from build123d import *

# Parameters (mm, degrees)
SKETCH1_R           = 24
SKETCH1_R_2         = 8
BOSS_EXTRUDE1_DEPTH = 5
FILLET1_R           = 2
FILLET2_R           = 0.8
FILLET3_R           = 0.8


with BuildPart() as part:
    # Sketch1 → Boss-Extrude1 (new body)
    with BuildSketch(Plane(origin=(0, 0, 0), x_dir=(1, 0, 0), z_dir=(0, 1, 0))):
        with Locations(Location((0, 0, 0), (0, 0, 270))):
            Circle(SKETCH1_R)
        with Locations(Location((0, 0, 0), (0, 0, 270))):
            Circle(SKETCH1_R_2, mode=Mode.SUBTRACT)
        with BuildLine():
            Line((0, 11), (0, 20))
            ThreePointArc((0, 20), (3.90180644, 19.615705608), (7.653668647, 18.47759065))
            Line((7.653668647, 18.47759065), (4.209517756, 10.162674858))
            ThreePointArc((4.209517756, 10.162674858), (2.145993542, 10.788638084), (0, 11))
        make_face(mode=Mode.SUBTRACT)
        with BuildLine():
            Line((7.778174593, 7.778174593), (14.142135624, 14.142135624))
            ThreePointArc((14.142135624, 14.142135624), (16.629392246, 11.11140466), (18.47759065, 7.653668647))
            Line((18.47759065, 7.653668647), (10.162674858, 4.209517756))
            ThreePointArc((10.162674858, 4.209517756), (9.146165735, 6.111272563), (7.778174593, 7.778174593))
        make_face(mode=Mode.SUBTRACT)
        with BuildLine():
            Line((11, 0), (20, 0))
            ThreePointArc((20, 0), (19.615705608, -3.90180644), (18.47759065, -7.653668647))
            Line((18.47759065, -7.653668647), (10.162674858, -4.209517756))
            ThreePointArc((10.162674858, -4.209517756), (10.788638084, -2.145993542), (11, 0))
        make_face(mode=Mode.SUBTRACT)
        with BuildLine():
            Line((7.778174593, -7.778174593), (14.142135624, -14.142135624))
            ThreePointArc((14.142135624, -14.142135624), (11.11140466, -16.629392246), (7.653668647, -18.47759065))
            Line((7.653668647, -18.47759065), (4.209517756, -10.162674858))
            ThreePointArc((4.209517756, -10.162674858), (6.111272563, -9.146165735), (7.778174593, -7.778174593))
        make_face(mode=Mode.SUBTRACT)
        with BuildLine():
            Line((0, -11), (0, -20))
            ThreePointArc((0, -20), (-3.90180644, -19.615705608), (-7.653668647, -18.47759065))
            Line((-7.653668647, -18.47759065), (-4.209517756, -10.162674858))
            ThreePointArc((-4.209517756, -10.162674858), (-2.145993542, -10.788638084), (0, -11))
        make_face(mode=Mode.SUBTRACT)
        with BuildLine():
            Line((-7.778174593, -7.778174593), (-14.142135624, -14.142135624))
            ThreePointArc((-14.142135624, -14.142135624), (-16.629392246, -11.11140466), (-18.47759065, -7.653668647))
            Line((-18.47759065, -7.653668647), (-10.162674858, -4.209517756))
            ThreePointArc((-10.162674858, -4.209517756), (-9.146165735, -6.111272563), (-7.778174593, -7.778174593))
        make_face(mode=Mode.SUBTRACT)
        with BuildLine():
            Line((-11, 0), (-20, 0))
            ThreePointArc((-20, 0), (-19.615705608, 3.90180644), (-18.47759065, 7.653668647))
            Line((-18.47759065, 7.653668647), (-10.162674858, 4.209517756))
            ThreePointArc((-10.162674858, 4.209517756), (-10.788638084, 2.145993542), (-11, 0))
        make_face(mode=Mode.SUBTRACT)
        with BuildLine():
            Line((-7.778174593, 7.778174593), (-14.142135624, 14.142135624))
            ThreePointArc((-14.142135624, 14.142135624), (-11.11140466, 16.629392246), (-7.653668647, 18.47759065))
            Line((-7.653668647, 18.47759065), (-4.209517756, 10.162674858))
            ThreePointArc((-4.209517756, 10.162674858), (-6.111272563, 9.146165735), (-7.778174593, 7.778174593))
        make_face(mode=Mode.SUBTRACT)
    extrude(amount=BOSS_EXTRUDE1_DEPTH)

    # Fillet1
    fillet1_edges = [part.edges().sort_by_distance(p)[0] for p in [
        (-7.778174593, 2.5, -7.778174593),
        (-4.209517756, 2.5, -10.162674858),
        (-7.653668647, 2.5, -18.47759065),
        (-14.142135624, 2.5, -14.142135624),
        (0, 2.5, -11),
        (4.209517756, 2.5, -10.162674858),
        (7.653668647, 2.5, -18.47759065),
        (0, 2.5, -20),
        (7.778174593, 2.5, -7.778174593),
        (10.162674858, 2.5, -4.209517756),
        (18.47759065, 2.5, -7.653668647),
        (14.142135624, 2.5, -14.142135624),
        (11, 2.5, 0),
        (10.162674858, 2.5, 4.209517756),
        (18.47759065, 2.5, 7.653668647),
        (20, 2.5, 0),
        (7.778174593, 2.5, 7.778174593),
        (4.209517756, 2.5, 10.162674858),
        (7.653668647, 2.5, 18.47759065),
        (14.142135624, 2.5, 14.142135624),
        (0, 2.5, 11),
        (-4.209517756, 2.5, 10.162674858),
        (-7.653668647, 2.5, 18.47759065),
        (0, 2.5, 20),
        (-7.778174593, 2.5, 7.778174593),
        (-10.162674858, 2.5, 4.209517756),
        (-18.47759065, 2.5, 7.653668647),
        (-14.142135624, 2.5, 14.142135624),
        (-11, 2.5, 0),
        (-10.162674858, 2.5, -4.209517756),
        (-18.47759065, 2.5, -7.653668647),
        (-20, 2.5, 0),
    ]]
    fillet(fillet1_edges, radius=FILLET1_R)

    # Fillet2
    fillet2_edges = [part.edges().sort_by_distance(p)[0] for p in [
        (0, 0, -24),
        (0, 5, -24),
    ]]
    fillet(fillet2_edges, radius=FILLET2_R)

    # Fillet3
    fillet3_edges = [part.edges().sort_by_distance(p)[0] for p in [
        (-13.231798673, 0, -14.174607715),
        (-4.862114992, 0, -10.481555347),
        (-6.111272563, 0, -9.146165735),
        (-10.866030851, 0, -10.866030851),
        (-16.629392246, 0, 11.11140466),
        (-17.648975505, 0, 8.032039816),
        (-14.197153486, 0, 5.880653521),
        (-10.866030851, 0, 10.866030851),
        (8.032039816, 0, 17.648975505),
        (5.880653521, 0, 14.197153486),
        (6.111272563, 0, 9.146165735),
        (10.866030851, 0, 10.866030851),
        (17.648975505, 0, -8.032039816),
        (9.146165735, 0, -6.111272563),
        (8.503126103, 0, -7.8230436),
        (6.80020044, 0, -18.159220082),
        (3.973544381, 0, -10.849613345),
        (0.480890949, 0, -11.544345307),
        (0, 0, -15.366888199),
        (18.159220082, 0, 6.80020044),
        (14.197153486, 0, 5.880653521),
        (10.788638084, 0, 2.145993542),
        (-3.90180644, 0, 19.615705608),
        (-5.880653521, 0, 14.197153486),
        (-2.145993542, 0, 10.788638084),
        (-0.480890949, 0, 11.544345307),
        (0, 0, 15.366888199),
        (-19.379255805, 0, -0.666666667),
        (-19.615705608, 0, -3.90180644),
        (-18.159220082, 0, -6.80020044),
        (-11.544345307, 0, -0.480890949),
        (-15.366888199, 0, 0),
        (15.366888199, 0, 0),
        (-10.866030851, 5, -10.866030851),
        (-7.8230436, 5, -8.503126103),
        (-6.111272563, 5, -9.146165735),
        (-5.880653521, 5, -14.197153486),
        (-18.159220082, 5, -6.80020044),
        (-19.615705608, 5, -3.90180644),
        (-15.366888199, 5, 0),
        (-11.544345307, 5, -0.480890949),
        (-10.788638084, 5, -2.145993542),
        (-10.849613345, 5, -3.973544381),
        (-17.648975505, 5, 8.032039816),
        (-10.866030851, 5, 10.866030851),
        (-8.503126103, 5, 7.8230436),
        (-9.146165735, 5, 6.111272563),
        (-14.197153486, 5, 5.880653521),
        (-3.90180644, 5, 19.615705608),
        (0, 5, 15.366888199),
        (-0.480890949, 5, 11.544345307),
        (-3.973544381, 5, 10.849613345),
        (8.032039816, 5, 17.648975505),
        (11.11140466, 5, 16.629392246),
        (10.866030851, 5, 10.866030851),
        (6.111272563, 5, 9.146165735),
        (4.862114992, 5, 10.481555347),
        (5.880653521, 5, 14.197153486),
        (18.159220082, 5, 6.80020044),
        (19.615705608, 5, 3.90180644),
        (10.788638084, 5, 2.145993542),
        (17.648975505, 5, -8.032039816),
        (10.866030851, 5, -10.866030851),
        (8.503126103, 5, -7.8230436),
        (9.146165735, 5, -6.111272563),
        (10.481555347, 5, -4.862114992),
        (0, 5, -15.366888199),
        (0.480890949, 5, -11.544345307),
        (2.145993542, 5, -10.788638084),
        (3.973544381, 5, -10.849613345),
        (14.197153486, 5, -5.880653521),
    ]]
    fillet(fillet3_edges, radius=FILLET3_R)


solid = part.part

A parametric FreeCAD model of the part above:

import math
import FreeCAD as App
import Part
import Sketcher
from FreeCAD import Vector
Q = App.Units.Quantity


def edges_at(feature, points):
    """Names of the edges that pass closest to the given points."""
    edges = feature.Shape.Edges
    near = lambda p: min(range(len(edges)), key=lambda i: edges[i].distToShape(Part.Vertex(*p))[0])
    return sorted({f"Edge{near(p) + 1}" for p in points})

doc = App.newDocument("Part")
params = doc.addObject("Spreadsheet::Sheet", "Params")
for row, (alias, value) in enumerate([
    ("sketch1_diameter", "48 mm"),
    ("sketch1_diameter2", "16 mm"),
    ("sketch1_radius", "11 mm"),
    ("sketch1_radius2", "20 mm"),
    ("pad1_length", "5 mm"),
    ("fillet_radius", "2 mm"),
    ("fillet2_radius", "0.8 mm"),
    ("fillet3_radius", "0.8 mm"),
], start=1):
    params.set(f"A{row}", alias)
    params.set(f"B{row}", "=" + value)
    params.setAlias(f"B{row}", alias)

body = doc.addObject("PartDesign::Body", "Body")

# Sketch on XZ plane
sketch1 = body.newObject("Sketcher::SketchObject", "Sketch")
sketch1.AttachmentSupport = (doc.getObject("XZ_Plane"), [""])
sketch1.MapMode = "FlatFace"
sketch1.addGeometry([
    Part.Circle(Vector(0, 0, 0), Vector(0, 0, 1), 24),  # 0
    Part.ArcOfCircle(Part.Circle(Vector(0, 0, 0), Vector(0, 0, 1), 11), math.radians(-180), math.radians(-158)),  # 1
    Part.LineSegment(Vector(-11, 0, 0), Vector(-20, 0, 0)),  # 2
    Part.ArcOfCircle(Part.Circle(Vector(0, 0, 0), Vector(0, 0, 1), 20), math.radians(180), math.radians(203)),  # 3
    Part.LineSegment(Vector(-18.5, -7.7, 0), Vector(-10.2, -4.2, 0)),  # 4
    Part.ArcOfCircle(Part.Circle(Vector(0, 0, 0), Vector(0, 0, 1), 11), math.radians(-135), math.radians(-113)),  # 5
    Part.LineSegment(Vector(-7.8, -7.8, 0), Vector(-14.1, -14.1, 0)),  # 6
    Part.ArcOfCircle(Part.Circle(Vector(0, 0, 0), Vector(0, 0, 1), 20), math.radians(-135), math.radians(-113)),  # 7
    Part.LineSegment(Vector(-7.7, -18.5, 0), Vector(-4.2, -10.2, 0)),  # 8
    Part.ArcOfCircle(Part.Circle(Vector(0, 0, 0), Vector(0, 0, 1), 11), math.radians(135), math.radians(157)),  # 9
    Part.LineSegment(Vector(-7.8, 7.8, 0), Vector(-14.1, 14.1, 0)),  # 10
    Part.ArcOfCircle(Part.Circle(Vector(0, 0, 0), Vector(0, 0, 1), 20), math.radians(135), math.radians(157)),  # 11
    Part.LineSegment(Vector(-18.5, 7.7, 0), Vector(-10.2, 4.2, 0)),  # 12
    Part.ArcOfCircle(Part.Circle(Vector(0, 0, 0), Vector(0, 0, 1), 11), math.radians(90), math.radians(112)),  # 13
    Part.LineSegment(Vector(0, 11, 0), Vector(0, 20, 0)),  # 14
    Part.ArcOfCircle(Part.Circle(Vector(0, 0, 0), Vector(0, 0, 1), 20), math.radians(90), math.radians(113)),  # 15
    Part.LineSegment(Vector(-7.7, 18.5, 0), Vector(-4.2, 10.2, 0)),  # 16
    Part.ArcOfCircle(Part.Circle(Vector(0, 0, 0), Vector(0, 0, 1), 11), math.radians(-90), math.radians(-68)),  # 17
    Part.LineSegment(Vector(0, -11, 0), Vector(0, -20, 0)),  # 18
    Part.ArcOfCircle(Part.Circle(Vector(0, 0, 0), Vector(0, 0, 1), 20), math.radians(-90), math.radians(-67)),  # 19
    Part.LineSegment(Vector(7.7, -18.5, 0), Vector(4.2, -10.2, 0)),  # 20
    Part.ArcOfCircle(Part.Circle(Vector(0, 0, 0), Vector(0, 0, 1), 11), math.radians(-45), math.radians(-23)),  # 21
    Part.LineSegment(Vector(7.8, -7.8, 0), Vector(14.1, -14.1, 0)),  # 22
    Part.ArcOfCircle(Part.Circle(Vector(0, 0, 0), Vector(0, 0, 1), 20), math.radians(-45), math.radians(-23)),  # 23
    Part.LineSegment(Vector(18.5, -7.7, 0), Vector(10.2, -4.2, 0)),  # 24
    Part.Circle(Vector(0, 0, 0), Vector(0, 0, 1), 8),  # 25
    Part.ArcOfCircle(Part.Circle(Vector(0, 0, 0), Vector(0, 0, 1), 11), math.radians(45), math.radians(67)),  # 26
    Part.LineSegment(Vector(7.8, 7.8, 0), Vector(14.1, 14.1, 0)),  # 27
    Part.ArcOfCircle(Part.Circle(Vector(0, 0, 0), Vector(0, 0, 1), 20), math.radians(45), math.radians(67)),  # 28
    Part.LineSegment(Vector(7.7, 18.5, 0), Vector(4.2, 10.2, 0)),  # 29
    Part.ArcOfCircle(Part.Circle(Vector(0, 0, 0), Vector(0, 0, 1), 11), math.radians(0), math.radians(22)),  # 30
    Part.LineSegment(Vector(11, 0, 0), Vector(20, 0, 0)),  # 31
    Part.ArcOfCircle(Part.Circle(Vector(0, 0, 0), Vector(0, 0, 1), 20), math.radians(0), math.radians(23)),  # 32
    Part.LineSegment(Vector(18.5, 7.7, 0), Vector(10.2, 4.2, 0)),  # 33
], False)
sketch1.addConstraint([
    Sketcher.Constraint("Coincident", 1, 1, 2, 1),
    Sketcher.Constraint("Coincident", 2, 2, 3, 1),
    Sketcher.Constraint("Coincident", 3, 2, 4, 1),
    Sketcher.Constraint("Coincident", 4, 2, 1, 2),
    Sketcher.Constraint("Coincident", 5, 1, 6, 1),
    Sketcher.Constraint("Coincident", 6, 2, 7, 1),
    Sketcher.Constraint("Coincident", 7, 2, 8, 1),
    Sketcher.Constraint("Coincident", 8, 2, 5, 2),
    Sketcher.Constraint("Coincident", 9, 1, 10, 1),
    Sketcher.Constraint("Coincident", 10, 2, 11, 1),
    Sketcher.Constraint("Coincident", 11, 2, 12, 1),
    Sketcher.Constraint("Coincident", 12, 2, 9, 2),
    Sketcher.Constraint("Coincident", 13, 1, 14, 1),
    Sketcher.Constraint("Coincident", 14, 2, 15, 1),
    Sketcher.Constraint("Coincident", 15, 2, 16, 1),
    Sketcher.Constraint("Coincident", 16, 2, 13, 2),
    Sketcher.Constraint("Coincident", 17, 1, 18, 1),
    Sketcher.Constraint("Coincident", 18, 2, 19, 1),
    Sketcher.Constraint("Coincident", 19, 2, 20, 1),
    Sketcher.Constraint("Coincident", 20, 2, 17, 2),
    Sketcher.Constraint("Coincident", 21, 1, 22, 1),
    Sketcher.Constraint("Coincident", 22, 2, 23, 1),
    Sketcher.Constraint("Coincident", 23, 2, 24, 1),
    Sketcher.Constraint("Coincident", 24, 2, 21, 2),
    Sketcher.Constraint("Coincident", 26, 1, 27, 1),
    Sketcher.Constraint("Coincident", 27, 2, 28, 1),
    Sketcher.Constraint("Coincident", 28, 2, 29, 1),
    Sketcher.Constraint("Coincident", 29, 2, 26, 2),
    Sketcher.Constraint("Coincident", 30, 1, 31, 1),
    Sketcher.Constraint("Coincident", 31, 2, 32, 1),
    Sketcher.Constraint("Coincident", 32, 2, 33, 1),
    Sketcher.Constraint("Coincident", 33, 2, 30, 2),
    Sketcher.Constraint("Horizontal", 2),
    Sketcher.Constraint("Vertical", 14),
    Sketcher.Constraint("Vertical", 18),
    Sketcher.Constraint("Horizontal", 31),
    Sketcher.Constraint("Coincident", 0, 3, -1, 1),
    Sketcher.Constraint("Coincident", 1, 3, -1, 1),
    Sketcher.Constraint("Coincident", 3, 3, -1, 1),
    Sketcher.Constraint("Coincident", 5, 3, -1, 1),
    Sketcher.Constraint("Coincident", 7, 3, -1, 1),
    Sketcher.Constraint("Coincident", 9, 3, -1, 1),
    Sketcher.Constraint("Coincident", 11, 3, -1, 1),
    Sketcher.Constraint("Coincident", 13, 3, -1, 1),
    Sketcher.Constraint("Coincident", 15, 3, -1, 1),
    Sketcher.Constraint("Coincident", 17, 3, -1, 1),
    Sketcher.Constraint("Coincident", 19, 3, -1, 1),
    Sketcher.Constraint("Coincident", 21, 3, -1, 1),
    Sketcher.Constraint("Coincident", 23, 3, -1, 1),
    Sketcher.Constraint("Coincident", 25, 3, -1, 1),
    Sketcher.Constraint("Coincident", 26, 3, -1, 1),
    Sketcher.Constraint("Coincident", 28, 3, -1, 1),
    Sketcher.Constraint("Coincident", 30, 3, -1, 1),
    Sketcher.Constraint("Coincident", 32, 3, -1, 1),
    Sketcher.Constraint("Equal", 1, 5),
    Sketcher.Constraint("Equal", 3, 7),
    Sketcher.Constraint("Equal", 5, 9),
    Sketcher.Constraint("Equal", 7, 11),
    Sketcher.Constraint("Equal", 9, 13),
    Sketcher.Constraint("Equal", 11, 15),
    Sketcher.Constraint("Equal", 13, 17),
    Sketcher.Constraint("Equal", 15, 19),
    Sketcher.Constraint("Equal", 17, 21),
    Sketcher.Constraint("Equal", 19, 23),
    Sketcher.Constraint("Equal", 21, 26),
    Sketcher.Constraint("Equal", 23, 28),
    Sketcher.Constraint("Equal", 26, 30),
    Sketcher.Constraint("Equal", 28, 32),
    Sketcher.Constraint("PointOnObject", 1, 1, -1),
    Sketcher.Constraint("PointOnObject", 13, 1, -2),
    Sketcher.Constraint("PointOnObject", 17, 1, -2),
    Sketcher.Constraint("PointOnObject", 30, 1, -1),
    Sketcher.Constraint("Perpendicular", 6, 10),
    Sketcher.Constraint("Perpendicular", 8, 12),
    Sketcher.Constraint("Perpendicular", 4, 16),
    Sketcher.Constraint("Parallel", 16, 20),
    Sketcher.Constraint("Parallel", 10, 22),
    Sketcher.Constraint("Parallel", 12, 24),
    Sketcher.Constraint("Perpendicular", 22, 27),
    Sketcher.Constraint("Perpendicular", 24, 29),
    Sketcher.Constraint("Perpendicular", 20, 33),
    Sketcher.Constraint("Horizontal", 7, 2, 19, 2),
    Sketcher.Constraint("Horizontal", 8, 2, 20, 2),
    Sketcher.Constraint("Horizontal", 5, 1, 21, 1),
    Sketcher.Constraint("Horizontal", 6, 2, 22, 2),
    Sketcher.Constraint("Horizontal", 3, 2, 23, 2),
    Sketcher.Constraint("Horizontal", 9, 1, 26, 1),
    Sketcher.Constraint("Horizontal", 15, 2, 28, 2),
    Sketcher.Constraint("Horizontal", 11, 2, 32, 2),
    Sketcher.Constraint("Vertical", 5, 1, 9, 1),
    Sketcher.Constraint("Vertical", 3, 2, 11, 2),
    Sketcher.Constraint("Vertical", 7, 2, 15, 2),
    Sketcher.Constraint("Diameter", 0, 48.0),
    Sketcher.Constraint("Diameter", 25, 16.0),
    Sketcher.Constraint("Radius", 1, 11.0),
    Sketcher.Constraint("Radius", 3, 20.0),
    Sketcher.Constraint("Angle", 4, Q("22.5 deg")),
    Sketcher.Constraint("DistanceX", 4, 2, 5, 1, 2.3845),
    Sketcher.Constraint("DistanceY", 8, 2, 5, 1, 2.3845),
    Sketcher.Constraint("DistanceX", 3, 2, -1, 1, 18.477591),
])
sketch1.setExpression("Constraints[92]", "Params.sketch1_diameter")
sketch1.setExpression("Constraints[93]", "Params.sketch1_diameter2")
sketch1.setExpression("Constraints[94]", "Params.sketch1_radius")
sketch1.setExpression("Constraints[95]", "Params.sketch1_radius2")
pad1 = body.newObject("PartDesign::Pad", "Pad")
pad1.Profile = sketch1
pad1.setExpression("Length", "Params.pad1_length")
pad1.Reversed = True
doc.recompute()

fillet = body.newObject("PartDesign::Fillet", "Fillet")
fillet.Base = (pad1, edges_at(pad1, [
    (-7.778, 2.5, -7.778),
    (-4.21, 2.5, -10.163),
    (-7.654, 2.5, -18.478),
    (-14.142, 2.5, -14.142),
    (0, 2.5, -11),
    (4.21, 2.5, -10.163),
    (7.654, 2.5, -18.478),
    (0, 2.5, -20),
    (7.778, 2.5, -7.778),
    (10.163, 2.5, -4.21),
    (18.478, 2.5, -7.654),
    (14.142, 2.5, -14.142),
    (11, 2.5, 0),
    (10.163, 2.5, 4.21),
    (18.478, 2.5, 7.654),
    (20, 2.5, 0),
    (7.778, 2.5, 7.778),
    (4.21, 2.5, 10.163),
    (7.654, 2.5, 18.478),
    (14.142, 2.5, 14.142),
    (0, 2.5, 11),
    (-4.21, 2.5, 10.163),
    (-7.654, 2.5, 18.478),
    (0, 2.5, 20),
    (-7.778, 2.5, 7.778),
    (-10.163, 2.5, 4.21),
    (-18.478, 2.5, 7.654),
    (-14.142, 2.5, 14.142),
    (-11, 2.5, 0),
    (-10.163, 2.5, -4.21),
    (-18.478, 2.5, -7.654),
    (-20, 2.5, 0),
]))
fillet.setExpression("Radius", "Params.fillet_radius")
doc.recompute()

fillet2 = body.newObject("PartDesign::Fillet", "Fillet001")
fillet2.Base = (fillet, edges_at(fillet, [(0, 0, -24), (0, 5, -24)]))
fillet2.setExpression("Radius", "Params.fillet2_radius")
doc.recompute()

fillet3 = body.newObject("PartDesign::Fillet", "Fillet002")
fillet3.Base = (fillet2, edges_at(fillet2, [
    (-13.232, 0, -14.175),
    (-4.862, 0, -10.482),
    (-6.111, 0, -9.146),
    (-10.866, 0, -10.866),
    (-16.629, 0, 11.111),
    (-17.649, 0, 8.032),
    (-14.197, 0, 5.881),
    (-10.866, 0, 10.866),
    (8.032, 0, 17.649),
    (5.881, 0, 14.197),
    (6.111, 0, 9.146),
    (10.866, 0, 10.866),
    (17.649, 0, -8.032),
    (9.146, 0, -6.111),
    (8.503, 0, -7.823),
    (6.8, 0, -18.159),
    (3.974, 0, -10.85),
    (0.481, 0, -11.544),
    (0, 0, -15.367),
    (18.159, 0, 6.8),
    (14.197, 0, 5.881),
    (10.789, 0, 2.146),
    (-3.902, 0, 19.616),
    (-5.881, 0, 14.197),
    (-2.146, 0, 10.789),
    (-0.481, 0, 11.544),
    (0, 0, 15.367),
    (-19.379, 0, -0.667),
    (-19.616, 0, -3.902),
    (-18.159, 0, -6.8),
    (-11.544, 0, -0.481),
    (-15.367, 0, 0),
    (15.367, 0, 0),
    (-10.866, 5, -10.866),
    (-7.823, 5, -8.503),
    (-6.111, 5, -9.146),
    (-5.881, 5, -14.197),
    (-18.159, 5, -6.8),
    (-19.616, 5, -3.902),
    (-15.367, 5, 0),
    (-11.544, 5, -0.481),
    (-10.789, 5, -2.146),
    (-10.85, 5, -3.974),
    (-17.649, 5, 8.032),
    (-10.866, 5, 10.866),
    (-8.503, 5, 7.823),
    (-9.146, 5, 6.111),
    (-14.197, 5, 5.881),
    (-3.902, 5, 19.616),
    (0, 5, 15.367),
    (-0.481, 5, 11.544),
    (-3.974, 5, 10.85),
    (8.032, 5, 17.649),
    (11.111, 5, 16.629),
    (10.866, 5, 10.866),
    (6.111, 5, 9.146),
    (4.862, 5, 10.482),
    (5.881, 5, 14.197),
    (18.159, 5, 6.8),
    (19.616, 5, 3.902),
    (10.789, 5, 2.146),
    (17.649, 5, -8.032),
    (10.866, 5, -10.866),
    (8.503, 5, -7.823),
    (9.146, 5, -6.111),
    (10.482, 5, -4.862),
    (0, 5, -15.367),
    (0.481, 5, -11.544),
    (2.146, 5, -10.789),
    (3.974, 5, -10.85),
    (14.197, 5, -5.881),
]))
fillet3.setExpression("Radius", "Params.fillet3_radius")

doc.recompute()
